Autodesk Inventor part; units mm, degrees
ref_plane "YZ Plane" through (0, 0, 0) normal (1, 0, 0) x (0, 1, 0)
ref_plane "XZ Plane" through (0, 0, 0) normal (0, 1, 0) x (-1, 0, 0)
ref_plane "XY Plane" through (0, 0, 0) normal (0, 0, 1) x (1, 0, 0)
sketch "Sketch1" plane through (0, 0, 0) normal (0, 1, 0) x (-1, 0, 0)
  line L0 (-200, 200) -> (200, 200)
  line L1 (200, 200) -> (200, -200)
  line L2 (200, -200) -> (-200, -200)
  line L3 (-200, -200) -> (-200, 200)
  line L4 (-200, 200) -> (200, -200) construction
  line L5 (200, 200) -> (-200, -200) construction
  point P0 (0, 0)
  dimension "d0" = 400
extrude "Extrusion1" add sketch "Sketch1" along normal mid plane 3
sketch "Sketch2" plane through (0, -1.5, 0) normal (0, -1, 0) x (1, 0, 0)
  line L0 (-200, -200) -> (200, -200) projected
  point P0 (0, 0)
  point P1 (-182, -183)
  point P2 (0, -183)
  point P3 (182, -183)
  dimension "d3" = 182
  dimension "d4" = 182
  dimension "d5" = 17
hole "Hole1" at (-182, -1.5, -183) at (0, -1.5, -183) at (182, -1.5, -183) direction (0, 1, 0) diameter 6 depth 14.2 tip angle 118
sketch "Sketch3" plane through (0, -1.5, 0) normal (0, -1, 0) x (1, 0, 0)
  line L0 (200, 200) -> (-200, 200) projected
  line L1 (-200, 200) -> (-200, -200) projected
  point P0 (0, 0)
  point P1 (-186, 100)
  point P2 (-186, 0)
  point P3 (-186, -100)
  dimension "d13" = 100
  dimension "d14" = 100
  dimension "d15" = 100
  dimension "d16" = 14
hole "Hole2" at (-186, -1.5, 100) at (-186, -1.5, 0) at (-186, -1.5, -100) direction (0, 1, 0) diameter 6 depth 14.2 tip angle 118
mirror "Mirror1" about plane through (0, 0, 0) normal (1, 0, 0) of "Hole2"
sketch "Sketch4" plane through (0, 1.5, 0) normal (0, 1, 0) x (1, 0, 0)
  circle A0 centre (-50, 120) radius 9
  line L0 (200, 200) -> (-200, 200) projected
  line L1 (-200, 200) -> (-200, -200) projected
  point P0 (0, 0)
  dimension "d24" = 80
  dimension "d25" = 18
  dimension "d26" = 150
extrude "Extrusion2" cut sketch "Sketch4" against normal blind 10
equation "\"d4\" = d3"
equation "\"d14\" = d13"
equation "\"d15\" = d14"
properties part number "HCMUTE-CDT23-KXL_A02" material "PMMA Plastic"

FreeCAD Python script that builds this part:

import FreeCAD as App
import Part
import Sketcher

V = App.Vector
Q = App.Units.Quantity

doc = App.newDocument("Part")
body = doc.addObject("PartDesign::Body", "Body")

# Sketch on XZ plane
sketch1 = body.newObject("Sketcher::SketchObject", "Sketch")
sketch1.AttachmentSupport = (doc.getObject("XZ_Plane"), [""])
sketch1.MapMode = "FlatFace"
sketch1.addGeometry(Part.LineSegment(V(-200, 200, 0), V(200, 200, 0)), False)
sketch1.addGeometry(Part.LineSegment(V(200, 200, 0), V(200, -200, 0)), False)
sketch1.addGeometry(Part.LineSegment(V(200, -200, 0), V(-200, -200, 0)), False)
sketch1.addGeometry(Part.LineSegment(V(-200, -200, 0), V(-200, 200, 0)), False)
sketch1.addConstraint(Sketcher.Constraint("Coincident", 0, 2, 1, 1))
sketch1.addConstraint(Sketcher.Constraint("Coincident", 1, 2, 2, 1))
sketch1.addConstraint(Sketcher.Constraint("Coincident", 2, 2, 3, 1))
sketch1.addConstraint(Sketcher.Constraint("Coincident", 3, 2, 0, 1))
sketch1.addConstraint(Sketcher.Constraint("Horizontal", 0))
sketch1.addConstraint(Sketcher.Constraint("Vertical", 1))
sketch1.addConstraint(Sketcher.Constraint("Horizontal", 2))
sketch1.addConstraint(Sketcher.Constraint("Vertical", 3))
sketch1.addConstraint(Sketcher.Constraint("Symmetric", 0, 2, 2, 2, -1, 1))
sketch1.addConstraint(Sketcher.Constraint("Equal", 2, 1))
sketch1.addConstraint(Sketcher.Constraint("DistanceX", 0, 1, 0, 2, Q("400 mm")))
pad1 = body.newObject("PartDesign::Pad", "Pad")
pad1.Profile = sketch1
pad1.Length = 3
pad1.Midplane = True

# Sketch on XZ plane
sketch2 = body.newObject("Sketcher::SketchObject", "Sketch001")
sketch2.AttachmentSupport = (doc.getObject("XZ_Plane"), [""])
sketch2.MapMode = "FlatFace"
sketch2.AttachmentOffset = App.Placement(V(0, 0, 1.5), App.Rotation())
sketch2.addGeometry(Part.Circle(V(-182, -183, 0), V(0, 0, 1), 3), False)
sketch2.addGeometry(Part.Circle(V(0, -183, 0), V(0, 0, 1), 3), False)
sketch2.addGeometry(Part.Circle(V(182, -183, 0), V(0, 0, 1), 3), False)
sketch2.addConstraint(Sketcher.Constraint("Equal", 0, 1))
sketch2.addConstraint(Sketcher.Constraint("Equal", 1, 2))
sketch2.addConstraint(Sketcher.Constraint("Symmetric", 0, 3, 2, 3, -2))
sketch2.addConstraint(Sketcher.Constraint("PointOnObject", 1, 3, -2))
sketch2.addConstraint(Sketcher.Constraint("Horizontal", 0, 3, 1, 3))
sketch2.addConstraint(Sketcher.Constraint("Diameter", 0, Q("6 mm")))
sketch2.addConstraint(Sketcher.Constraint("DistanceX", 0, 3, -1, 1, Q("182 mm")))
sketch2.addConstraint(Sketcher.Constraint("DistanceY", 0, 3, -1, 1, Q("183 mm")))
doc.recompute()
hole = body.newObject("PartDesign::Hole", "Hole")
hole.Profile = sketch2
hole.ThreadType = "None"
hole.Diameter = 6
hole.DepthType = "Dimension"
hole.Depth = 14.2
hole.DrillPoint = "Angled"
hole.DrillPointAngle = 118

# Sketch on XZ plane
sketch3 = body.newObject("Sketcher::SketchObject", "Sketch002")
sketch3.AttachmentSupport = (doc.getObject("XZ_Plane"), [""])
sketch3.MapMode = "FlatFace"
sketch3.AttachmentOffset = App.Placement(V(0, 0, 1.5), App.Rotation())
sketch3.addGeometry(Part.Circle(V(-186, 100, 0), V(0, 0, 1), 3), False)
sketch3.addGeometry(Part.Circle(V(-186, 0, 0), V(0, 0, 1), 3), False)
sketch3.addGeometry(Part.Circle(V(-186, -100, 0), V(0, 0, 1), 3), False)
sketch3.addConstraint(Sketcher.Constraint("Equal", 0, 1))
sketch3.addConstraint(Sketcher.Constraint("Equal", 1, 2))
sketch3.addConstraint(Sketcher.Constraint("Symmetric", 0, 3, 2, 3, -1))
sketch3.addConstraint(Sketcher.Constraint("PointOnObject", 1, 3, -1))
sketch3.addConstraint(Sketcher.Constraint("Vertical", 0, 3, 1, 3))
sketch3.addConstraint(Sketcher.Constraint("Diameter", 0, Q("6 mm")))
sketch3.addConstraint(Sketcher.Constraint("DistanceX", 0, 3, -1, 1, Q("186 mm")))
sketch3.addConstraint(Sketcher.Constraint("DistanceY", -1, 1, 0, 3, Q("100 mm")))
doc.recompute()
hole2 = body.newObject("PartDesign::Hole", "Hole001")
hole2.Profile = sketch3
hole2.ThreadType = "None"
hole2.Diameter = 6
hole2.DepthType = "Dimension"
hole2.Depth = 14.2
hole2.DrillPoint = "Angled"
hole2.DrillPointAngle = 118
doc.recompute()

mirrored = body.newObject("PartDesign::Mirrored", "Mirrored")
mirrored.Originals = [hole2]
mirrored.MirrorPlane = (doc.getObject("YZ_Plane"), [""])
body.Tip = mirrored

# Sketch on XZ plane
sketch4 = body.newObject("Sketcher::SketchObject", "Sketch003")
sketch4.AttachmentSupport = (doc.getObject("XZ_Plane"), [""])
sketch4.MapMode = "FlatFace"
sketch4.AttachmentOffset = App.Placement(V(0, 0, -1.5), App.Rotation())
sketch4.addGeometry(Part.Circle(V(-50, -120, 0), V(0, 0, 1), 9), False)
sketch4.addConstraint(Sketcher.Constraint("Diameter", 0, Q("18 mm")))
sketch4.addConstraint(Sketcher.Constraint("DistanceX", 0, 3, -1, 1, Q("50 mm")))
sketch4.addConstraint(Sketcher.Constraint("DistanceY", 0, 3, -1, 1, Q("120 mm")))
pocket1 = body.newObject("PartDesign::Pocket", "Pocket")
pocket1.Profile = sketch4
pocket1.Length = 10
pocket1.Reversed = True

doc.recompute()
